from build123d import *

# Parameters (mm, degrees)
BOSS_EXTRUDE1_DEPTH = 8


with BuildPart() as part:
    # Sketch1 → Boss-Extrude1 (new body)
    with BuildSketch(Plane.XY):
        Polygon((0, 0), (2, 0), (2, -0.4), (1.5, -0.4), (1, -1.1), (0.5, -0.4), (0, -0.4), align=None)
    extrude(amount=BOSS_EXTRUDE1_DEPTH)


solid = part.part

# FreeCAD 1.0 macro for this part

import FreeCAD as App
import Part
import Sketcher
Q = App.Units.Quantity


def add_polygon(sketch, points):
    """Adds a closed chain of lines whose ends are joined by coincident constraints."""
    first, n = sketch.GeometryCount, len(points)
    for a, b in zip(points, points[1:] + points[:1]):
        sketch.addGeometry(Part.LineSegment(App.Vector(*a, 0), App.Vector(*b, 0)), False)
    for i in range(n):
        sketch.addConstraint(Sketcher.Constraint("Coincident", first + i, 2, first + (i + 1) % n, 1))

doc = App.newDocument("Part")
body = doc.addObject("PartDesign::Body", "Body")

# Sketch on XY plane
sketch1 = body.newObject("Sketcher::SketchObject", "Sketch")
sketch1.AttachmentSupport = (doc.getObject("XY_Plane"), [""])
sketch1.MapMode = "FlatFace"
add_polygon(sketch1, [(2, 0), (0, 0), (0, -0.4), (0.5, -0.4), (1, -1.1), (1.5, -0.4), (2, -0.4)])  # lines 0-6
sketch1.addConstraint([
    Sketcher.Constraint("Horizontal", 0),
    Sketcher.Constraint("Vertical", 1),
    Sketcher.Constraint("Horizontal", 2),
    Sketcher.Constraint("Horizontal", 5),
    Sketcher.Constraint("Vertical", 6),
    Sketcher.Constraint("Coincident", 0, 2, -1, 1),
    Sketcher.Constraint("Horizontal", 2, 2, 4, 2),
    Sketcher.Constraint("Equal", 2, 5),
    Sketcher.Constraint("Equal", 3, 4),
    Sketcher.Constraint("DistanceX", 0, 2, 0, 1, Q("2 mm")),
    Sketcher.Constraint("DistanceX", 2, 1, 2, 2, Q("0.5 mm")),
    Sketcher.Constraint("DistanceY", 1, 2, 1, 1, Q("0.4 mm")),
    Sketcher.Constraint("DistanceY", 3, 2, -1, 1, Q("1.1 mm")),
])
pad1 = body.newObject("PartDesign::Pad", "Pad")
pad1.Profile = sketch1
pad1.Length = 8

doc.recompute()
